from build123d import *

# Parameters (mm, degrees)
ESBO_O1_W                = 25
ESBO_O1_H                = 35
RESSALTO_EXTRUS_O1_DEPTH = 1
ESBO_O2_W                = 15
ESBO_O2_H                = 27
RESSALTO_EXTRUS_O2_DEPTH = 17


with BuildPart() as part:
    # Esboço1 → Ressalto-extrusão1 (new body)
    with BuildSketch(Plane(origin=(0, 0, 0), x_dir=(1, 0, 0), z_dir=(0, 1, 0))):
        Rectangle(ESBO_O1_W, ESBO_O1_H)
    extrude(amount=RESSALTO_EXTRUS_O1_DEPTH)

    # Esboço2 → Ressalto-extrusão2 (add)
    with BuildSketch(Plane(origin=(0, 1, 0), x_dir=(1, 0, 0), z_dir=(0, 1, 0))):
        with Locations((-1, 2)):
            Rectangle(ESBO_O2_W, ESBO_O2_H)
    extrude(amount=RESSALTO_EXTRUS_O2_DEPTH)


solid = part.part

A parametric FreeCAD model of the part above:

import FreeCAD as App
import Part
import Sketcher

V = App.Vector
Q = App.Units.Quantity


def add_polygon(sketch, points):
    """Adds a closed chain of lines whose ends are joined by coincident constraints."""
    first, n = sketch.GeometryCount, len(points)
    for a, b in zip(points, points[1:] + points[:1]):
        sketch.addGeometry(Part.LineSegment(App.Vector(*a, 0), App.Vector(*b, 0)), False)
    for i in range(n):
        sketch.addConstraint(Sketcher.Constraint("Coincident", first + i, 2, first + (i + 1) % n, 1))

doc = App.newDocument("Part")
body = doc.addObject("PartDesign::Body", "Body")

# Sketch on XZ plane
sketch1 = doc.addObject("Sketcher::SketchObject", "Sketch")
body.addObject(sketch1)
sketch1.AttachmentSupport = (doc.XZ_Plane, [""])
sketch1.MapMode = "FlatFace"
add_polygon(sketch1, [(-12.5, -17.5), (-12.5, 17.5), (12.5, 17.5), (12.5, -17.5)])  # lines 0-3
sketch1.addConstraint(Sketcher.Constraint("Vertical", 0))
sketch1.addConstraint(Sketcher.Constraint("Horizontal", 1))
sketch1.addConstraint(Sketcher.Constraint("Vertical", 2))
sketch1.addConstraint(Sketcher.Constraint("Horizontal", 3))
sketch1.addConstraint(Sketcher.Constraint("Symmetric", 0, 2, 2, 2, -1, 1))
sketch1.addConstraint(Sketcher.Constraint("DistanceX", 1, 1, 1, 2, Q("25 mm")))
sketch1.addConstraint(Sketcher.Constraint("DistanceY", 0, 1, 0, 2, Q("35 mm")))
pad1 = doc.addObject("PartDesign::Pad", "Pad")
body.addObject(pad1)
pad1.Profile = sketch1
pad1.Length = 1
pad1.Reversed = True

# Sketch on XZ plane
sketch2 = doc.addObject("Sketcher::SketchObject", "Sketch001")
body.addObject(sketch2)
sketch2.AttachmentSupport = (doc.XZ_Plane, [""])
sketch2.MapMode = "FlatFace"
sketch2.AttachmentOffset = App.Placement(V(0, 0, -1), App.Rotation())
add_polygon(sketch2, [(-8.5, -15.5), (-8.5, 11.5), (6.5, 11.5), (6.5, -15.5)])  # lines 0-3
sketch2.addConstraint(Sketcher.Constraint("Vertical", 0))
sketch2.addConstraint(Sketcher.Constraint("Horizontal", 1))
sketch2.addConstraint(Sketcher.Constraint("Vertical", 2))
sketch2.addConstraint(Sketcher.Constraint("Horizontal", 3))
sketch2.addConstraint(Sketcher.Constraint("DistanceX", 1, 1, 1, 2, Q("15 mm")))
sketch2.addConstraint(Sketcher.Constraint("DistanceY", 0, 1, 0, 2, Q("27 mm")))
sketch2.addConstraint(Sketcher.Constraint("DistanceX", 0, 2, -1, 1, Q("8.5 mm")))
sketch2.addConstraint(Sketcher.Constraint("DistanceY", -1, 1, 0, 2, Q("11.5 mm")))
pad2 = doc.addObject("PartDesign::Pad", "Pad001")
body.addObject(pad2)
pad2.Profile = sketch2
pad2.Length = 17
pad2.Reversed = True

doc.recompute()
